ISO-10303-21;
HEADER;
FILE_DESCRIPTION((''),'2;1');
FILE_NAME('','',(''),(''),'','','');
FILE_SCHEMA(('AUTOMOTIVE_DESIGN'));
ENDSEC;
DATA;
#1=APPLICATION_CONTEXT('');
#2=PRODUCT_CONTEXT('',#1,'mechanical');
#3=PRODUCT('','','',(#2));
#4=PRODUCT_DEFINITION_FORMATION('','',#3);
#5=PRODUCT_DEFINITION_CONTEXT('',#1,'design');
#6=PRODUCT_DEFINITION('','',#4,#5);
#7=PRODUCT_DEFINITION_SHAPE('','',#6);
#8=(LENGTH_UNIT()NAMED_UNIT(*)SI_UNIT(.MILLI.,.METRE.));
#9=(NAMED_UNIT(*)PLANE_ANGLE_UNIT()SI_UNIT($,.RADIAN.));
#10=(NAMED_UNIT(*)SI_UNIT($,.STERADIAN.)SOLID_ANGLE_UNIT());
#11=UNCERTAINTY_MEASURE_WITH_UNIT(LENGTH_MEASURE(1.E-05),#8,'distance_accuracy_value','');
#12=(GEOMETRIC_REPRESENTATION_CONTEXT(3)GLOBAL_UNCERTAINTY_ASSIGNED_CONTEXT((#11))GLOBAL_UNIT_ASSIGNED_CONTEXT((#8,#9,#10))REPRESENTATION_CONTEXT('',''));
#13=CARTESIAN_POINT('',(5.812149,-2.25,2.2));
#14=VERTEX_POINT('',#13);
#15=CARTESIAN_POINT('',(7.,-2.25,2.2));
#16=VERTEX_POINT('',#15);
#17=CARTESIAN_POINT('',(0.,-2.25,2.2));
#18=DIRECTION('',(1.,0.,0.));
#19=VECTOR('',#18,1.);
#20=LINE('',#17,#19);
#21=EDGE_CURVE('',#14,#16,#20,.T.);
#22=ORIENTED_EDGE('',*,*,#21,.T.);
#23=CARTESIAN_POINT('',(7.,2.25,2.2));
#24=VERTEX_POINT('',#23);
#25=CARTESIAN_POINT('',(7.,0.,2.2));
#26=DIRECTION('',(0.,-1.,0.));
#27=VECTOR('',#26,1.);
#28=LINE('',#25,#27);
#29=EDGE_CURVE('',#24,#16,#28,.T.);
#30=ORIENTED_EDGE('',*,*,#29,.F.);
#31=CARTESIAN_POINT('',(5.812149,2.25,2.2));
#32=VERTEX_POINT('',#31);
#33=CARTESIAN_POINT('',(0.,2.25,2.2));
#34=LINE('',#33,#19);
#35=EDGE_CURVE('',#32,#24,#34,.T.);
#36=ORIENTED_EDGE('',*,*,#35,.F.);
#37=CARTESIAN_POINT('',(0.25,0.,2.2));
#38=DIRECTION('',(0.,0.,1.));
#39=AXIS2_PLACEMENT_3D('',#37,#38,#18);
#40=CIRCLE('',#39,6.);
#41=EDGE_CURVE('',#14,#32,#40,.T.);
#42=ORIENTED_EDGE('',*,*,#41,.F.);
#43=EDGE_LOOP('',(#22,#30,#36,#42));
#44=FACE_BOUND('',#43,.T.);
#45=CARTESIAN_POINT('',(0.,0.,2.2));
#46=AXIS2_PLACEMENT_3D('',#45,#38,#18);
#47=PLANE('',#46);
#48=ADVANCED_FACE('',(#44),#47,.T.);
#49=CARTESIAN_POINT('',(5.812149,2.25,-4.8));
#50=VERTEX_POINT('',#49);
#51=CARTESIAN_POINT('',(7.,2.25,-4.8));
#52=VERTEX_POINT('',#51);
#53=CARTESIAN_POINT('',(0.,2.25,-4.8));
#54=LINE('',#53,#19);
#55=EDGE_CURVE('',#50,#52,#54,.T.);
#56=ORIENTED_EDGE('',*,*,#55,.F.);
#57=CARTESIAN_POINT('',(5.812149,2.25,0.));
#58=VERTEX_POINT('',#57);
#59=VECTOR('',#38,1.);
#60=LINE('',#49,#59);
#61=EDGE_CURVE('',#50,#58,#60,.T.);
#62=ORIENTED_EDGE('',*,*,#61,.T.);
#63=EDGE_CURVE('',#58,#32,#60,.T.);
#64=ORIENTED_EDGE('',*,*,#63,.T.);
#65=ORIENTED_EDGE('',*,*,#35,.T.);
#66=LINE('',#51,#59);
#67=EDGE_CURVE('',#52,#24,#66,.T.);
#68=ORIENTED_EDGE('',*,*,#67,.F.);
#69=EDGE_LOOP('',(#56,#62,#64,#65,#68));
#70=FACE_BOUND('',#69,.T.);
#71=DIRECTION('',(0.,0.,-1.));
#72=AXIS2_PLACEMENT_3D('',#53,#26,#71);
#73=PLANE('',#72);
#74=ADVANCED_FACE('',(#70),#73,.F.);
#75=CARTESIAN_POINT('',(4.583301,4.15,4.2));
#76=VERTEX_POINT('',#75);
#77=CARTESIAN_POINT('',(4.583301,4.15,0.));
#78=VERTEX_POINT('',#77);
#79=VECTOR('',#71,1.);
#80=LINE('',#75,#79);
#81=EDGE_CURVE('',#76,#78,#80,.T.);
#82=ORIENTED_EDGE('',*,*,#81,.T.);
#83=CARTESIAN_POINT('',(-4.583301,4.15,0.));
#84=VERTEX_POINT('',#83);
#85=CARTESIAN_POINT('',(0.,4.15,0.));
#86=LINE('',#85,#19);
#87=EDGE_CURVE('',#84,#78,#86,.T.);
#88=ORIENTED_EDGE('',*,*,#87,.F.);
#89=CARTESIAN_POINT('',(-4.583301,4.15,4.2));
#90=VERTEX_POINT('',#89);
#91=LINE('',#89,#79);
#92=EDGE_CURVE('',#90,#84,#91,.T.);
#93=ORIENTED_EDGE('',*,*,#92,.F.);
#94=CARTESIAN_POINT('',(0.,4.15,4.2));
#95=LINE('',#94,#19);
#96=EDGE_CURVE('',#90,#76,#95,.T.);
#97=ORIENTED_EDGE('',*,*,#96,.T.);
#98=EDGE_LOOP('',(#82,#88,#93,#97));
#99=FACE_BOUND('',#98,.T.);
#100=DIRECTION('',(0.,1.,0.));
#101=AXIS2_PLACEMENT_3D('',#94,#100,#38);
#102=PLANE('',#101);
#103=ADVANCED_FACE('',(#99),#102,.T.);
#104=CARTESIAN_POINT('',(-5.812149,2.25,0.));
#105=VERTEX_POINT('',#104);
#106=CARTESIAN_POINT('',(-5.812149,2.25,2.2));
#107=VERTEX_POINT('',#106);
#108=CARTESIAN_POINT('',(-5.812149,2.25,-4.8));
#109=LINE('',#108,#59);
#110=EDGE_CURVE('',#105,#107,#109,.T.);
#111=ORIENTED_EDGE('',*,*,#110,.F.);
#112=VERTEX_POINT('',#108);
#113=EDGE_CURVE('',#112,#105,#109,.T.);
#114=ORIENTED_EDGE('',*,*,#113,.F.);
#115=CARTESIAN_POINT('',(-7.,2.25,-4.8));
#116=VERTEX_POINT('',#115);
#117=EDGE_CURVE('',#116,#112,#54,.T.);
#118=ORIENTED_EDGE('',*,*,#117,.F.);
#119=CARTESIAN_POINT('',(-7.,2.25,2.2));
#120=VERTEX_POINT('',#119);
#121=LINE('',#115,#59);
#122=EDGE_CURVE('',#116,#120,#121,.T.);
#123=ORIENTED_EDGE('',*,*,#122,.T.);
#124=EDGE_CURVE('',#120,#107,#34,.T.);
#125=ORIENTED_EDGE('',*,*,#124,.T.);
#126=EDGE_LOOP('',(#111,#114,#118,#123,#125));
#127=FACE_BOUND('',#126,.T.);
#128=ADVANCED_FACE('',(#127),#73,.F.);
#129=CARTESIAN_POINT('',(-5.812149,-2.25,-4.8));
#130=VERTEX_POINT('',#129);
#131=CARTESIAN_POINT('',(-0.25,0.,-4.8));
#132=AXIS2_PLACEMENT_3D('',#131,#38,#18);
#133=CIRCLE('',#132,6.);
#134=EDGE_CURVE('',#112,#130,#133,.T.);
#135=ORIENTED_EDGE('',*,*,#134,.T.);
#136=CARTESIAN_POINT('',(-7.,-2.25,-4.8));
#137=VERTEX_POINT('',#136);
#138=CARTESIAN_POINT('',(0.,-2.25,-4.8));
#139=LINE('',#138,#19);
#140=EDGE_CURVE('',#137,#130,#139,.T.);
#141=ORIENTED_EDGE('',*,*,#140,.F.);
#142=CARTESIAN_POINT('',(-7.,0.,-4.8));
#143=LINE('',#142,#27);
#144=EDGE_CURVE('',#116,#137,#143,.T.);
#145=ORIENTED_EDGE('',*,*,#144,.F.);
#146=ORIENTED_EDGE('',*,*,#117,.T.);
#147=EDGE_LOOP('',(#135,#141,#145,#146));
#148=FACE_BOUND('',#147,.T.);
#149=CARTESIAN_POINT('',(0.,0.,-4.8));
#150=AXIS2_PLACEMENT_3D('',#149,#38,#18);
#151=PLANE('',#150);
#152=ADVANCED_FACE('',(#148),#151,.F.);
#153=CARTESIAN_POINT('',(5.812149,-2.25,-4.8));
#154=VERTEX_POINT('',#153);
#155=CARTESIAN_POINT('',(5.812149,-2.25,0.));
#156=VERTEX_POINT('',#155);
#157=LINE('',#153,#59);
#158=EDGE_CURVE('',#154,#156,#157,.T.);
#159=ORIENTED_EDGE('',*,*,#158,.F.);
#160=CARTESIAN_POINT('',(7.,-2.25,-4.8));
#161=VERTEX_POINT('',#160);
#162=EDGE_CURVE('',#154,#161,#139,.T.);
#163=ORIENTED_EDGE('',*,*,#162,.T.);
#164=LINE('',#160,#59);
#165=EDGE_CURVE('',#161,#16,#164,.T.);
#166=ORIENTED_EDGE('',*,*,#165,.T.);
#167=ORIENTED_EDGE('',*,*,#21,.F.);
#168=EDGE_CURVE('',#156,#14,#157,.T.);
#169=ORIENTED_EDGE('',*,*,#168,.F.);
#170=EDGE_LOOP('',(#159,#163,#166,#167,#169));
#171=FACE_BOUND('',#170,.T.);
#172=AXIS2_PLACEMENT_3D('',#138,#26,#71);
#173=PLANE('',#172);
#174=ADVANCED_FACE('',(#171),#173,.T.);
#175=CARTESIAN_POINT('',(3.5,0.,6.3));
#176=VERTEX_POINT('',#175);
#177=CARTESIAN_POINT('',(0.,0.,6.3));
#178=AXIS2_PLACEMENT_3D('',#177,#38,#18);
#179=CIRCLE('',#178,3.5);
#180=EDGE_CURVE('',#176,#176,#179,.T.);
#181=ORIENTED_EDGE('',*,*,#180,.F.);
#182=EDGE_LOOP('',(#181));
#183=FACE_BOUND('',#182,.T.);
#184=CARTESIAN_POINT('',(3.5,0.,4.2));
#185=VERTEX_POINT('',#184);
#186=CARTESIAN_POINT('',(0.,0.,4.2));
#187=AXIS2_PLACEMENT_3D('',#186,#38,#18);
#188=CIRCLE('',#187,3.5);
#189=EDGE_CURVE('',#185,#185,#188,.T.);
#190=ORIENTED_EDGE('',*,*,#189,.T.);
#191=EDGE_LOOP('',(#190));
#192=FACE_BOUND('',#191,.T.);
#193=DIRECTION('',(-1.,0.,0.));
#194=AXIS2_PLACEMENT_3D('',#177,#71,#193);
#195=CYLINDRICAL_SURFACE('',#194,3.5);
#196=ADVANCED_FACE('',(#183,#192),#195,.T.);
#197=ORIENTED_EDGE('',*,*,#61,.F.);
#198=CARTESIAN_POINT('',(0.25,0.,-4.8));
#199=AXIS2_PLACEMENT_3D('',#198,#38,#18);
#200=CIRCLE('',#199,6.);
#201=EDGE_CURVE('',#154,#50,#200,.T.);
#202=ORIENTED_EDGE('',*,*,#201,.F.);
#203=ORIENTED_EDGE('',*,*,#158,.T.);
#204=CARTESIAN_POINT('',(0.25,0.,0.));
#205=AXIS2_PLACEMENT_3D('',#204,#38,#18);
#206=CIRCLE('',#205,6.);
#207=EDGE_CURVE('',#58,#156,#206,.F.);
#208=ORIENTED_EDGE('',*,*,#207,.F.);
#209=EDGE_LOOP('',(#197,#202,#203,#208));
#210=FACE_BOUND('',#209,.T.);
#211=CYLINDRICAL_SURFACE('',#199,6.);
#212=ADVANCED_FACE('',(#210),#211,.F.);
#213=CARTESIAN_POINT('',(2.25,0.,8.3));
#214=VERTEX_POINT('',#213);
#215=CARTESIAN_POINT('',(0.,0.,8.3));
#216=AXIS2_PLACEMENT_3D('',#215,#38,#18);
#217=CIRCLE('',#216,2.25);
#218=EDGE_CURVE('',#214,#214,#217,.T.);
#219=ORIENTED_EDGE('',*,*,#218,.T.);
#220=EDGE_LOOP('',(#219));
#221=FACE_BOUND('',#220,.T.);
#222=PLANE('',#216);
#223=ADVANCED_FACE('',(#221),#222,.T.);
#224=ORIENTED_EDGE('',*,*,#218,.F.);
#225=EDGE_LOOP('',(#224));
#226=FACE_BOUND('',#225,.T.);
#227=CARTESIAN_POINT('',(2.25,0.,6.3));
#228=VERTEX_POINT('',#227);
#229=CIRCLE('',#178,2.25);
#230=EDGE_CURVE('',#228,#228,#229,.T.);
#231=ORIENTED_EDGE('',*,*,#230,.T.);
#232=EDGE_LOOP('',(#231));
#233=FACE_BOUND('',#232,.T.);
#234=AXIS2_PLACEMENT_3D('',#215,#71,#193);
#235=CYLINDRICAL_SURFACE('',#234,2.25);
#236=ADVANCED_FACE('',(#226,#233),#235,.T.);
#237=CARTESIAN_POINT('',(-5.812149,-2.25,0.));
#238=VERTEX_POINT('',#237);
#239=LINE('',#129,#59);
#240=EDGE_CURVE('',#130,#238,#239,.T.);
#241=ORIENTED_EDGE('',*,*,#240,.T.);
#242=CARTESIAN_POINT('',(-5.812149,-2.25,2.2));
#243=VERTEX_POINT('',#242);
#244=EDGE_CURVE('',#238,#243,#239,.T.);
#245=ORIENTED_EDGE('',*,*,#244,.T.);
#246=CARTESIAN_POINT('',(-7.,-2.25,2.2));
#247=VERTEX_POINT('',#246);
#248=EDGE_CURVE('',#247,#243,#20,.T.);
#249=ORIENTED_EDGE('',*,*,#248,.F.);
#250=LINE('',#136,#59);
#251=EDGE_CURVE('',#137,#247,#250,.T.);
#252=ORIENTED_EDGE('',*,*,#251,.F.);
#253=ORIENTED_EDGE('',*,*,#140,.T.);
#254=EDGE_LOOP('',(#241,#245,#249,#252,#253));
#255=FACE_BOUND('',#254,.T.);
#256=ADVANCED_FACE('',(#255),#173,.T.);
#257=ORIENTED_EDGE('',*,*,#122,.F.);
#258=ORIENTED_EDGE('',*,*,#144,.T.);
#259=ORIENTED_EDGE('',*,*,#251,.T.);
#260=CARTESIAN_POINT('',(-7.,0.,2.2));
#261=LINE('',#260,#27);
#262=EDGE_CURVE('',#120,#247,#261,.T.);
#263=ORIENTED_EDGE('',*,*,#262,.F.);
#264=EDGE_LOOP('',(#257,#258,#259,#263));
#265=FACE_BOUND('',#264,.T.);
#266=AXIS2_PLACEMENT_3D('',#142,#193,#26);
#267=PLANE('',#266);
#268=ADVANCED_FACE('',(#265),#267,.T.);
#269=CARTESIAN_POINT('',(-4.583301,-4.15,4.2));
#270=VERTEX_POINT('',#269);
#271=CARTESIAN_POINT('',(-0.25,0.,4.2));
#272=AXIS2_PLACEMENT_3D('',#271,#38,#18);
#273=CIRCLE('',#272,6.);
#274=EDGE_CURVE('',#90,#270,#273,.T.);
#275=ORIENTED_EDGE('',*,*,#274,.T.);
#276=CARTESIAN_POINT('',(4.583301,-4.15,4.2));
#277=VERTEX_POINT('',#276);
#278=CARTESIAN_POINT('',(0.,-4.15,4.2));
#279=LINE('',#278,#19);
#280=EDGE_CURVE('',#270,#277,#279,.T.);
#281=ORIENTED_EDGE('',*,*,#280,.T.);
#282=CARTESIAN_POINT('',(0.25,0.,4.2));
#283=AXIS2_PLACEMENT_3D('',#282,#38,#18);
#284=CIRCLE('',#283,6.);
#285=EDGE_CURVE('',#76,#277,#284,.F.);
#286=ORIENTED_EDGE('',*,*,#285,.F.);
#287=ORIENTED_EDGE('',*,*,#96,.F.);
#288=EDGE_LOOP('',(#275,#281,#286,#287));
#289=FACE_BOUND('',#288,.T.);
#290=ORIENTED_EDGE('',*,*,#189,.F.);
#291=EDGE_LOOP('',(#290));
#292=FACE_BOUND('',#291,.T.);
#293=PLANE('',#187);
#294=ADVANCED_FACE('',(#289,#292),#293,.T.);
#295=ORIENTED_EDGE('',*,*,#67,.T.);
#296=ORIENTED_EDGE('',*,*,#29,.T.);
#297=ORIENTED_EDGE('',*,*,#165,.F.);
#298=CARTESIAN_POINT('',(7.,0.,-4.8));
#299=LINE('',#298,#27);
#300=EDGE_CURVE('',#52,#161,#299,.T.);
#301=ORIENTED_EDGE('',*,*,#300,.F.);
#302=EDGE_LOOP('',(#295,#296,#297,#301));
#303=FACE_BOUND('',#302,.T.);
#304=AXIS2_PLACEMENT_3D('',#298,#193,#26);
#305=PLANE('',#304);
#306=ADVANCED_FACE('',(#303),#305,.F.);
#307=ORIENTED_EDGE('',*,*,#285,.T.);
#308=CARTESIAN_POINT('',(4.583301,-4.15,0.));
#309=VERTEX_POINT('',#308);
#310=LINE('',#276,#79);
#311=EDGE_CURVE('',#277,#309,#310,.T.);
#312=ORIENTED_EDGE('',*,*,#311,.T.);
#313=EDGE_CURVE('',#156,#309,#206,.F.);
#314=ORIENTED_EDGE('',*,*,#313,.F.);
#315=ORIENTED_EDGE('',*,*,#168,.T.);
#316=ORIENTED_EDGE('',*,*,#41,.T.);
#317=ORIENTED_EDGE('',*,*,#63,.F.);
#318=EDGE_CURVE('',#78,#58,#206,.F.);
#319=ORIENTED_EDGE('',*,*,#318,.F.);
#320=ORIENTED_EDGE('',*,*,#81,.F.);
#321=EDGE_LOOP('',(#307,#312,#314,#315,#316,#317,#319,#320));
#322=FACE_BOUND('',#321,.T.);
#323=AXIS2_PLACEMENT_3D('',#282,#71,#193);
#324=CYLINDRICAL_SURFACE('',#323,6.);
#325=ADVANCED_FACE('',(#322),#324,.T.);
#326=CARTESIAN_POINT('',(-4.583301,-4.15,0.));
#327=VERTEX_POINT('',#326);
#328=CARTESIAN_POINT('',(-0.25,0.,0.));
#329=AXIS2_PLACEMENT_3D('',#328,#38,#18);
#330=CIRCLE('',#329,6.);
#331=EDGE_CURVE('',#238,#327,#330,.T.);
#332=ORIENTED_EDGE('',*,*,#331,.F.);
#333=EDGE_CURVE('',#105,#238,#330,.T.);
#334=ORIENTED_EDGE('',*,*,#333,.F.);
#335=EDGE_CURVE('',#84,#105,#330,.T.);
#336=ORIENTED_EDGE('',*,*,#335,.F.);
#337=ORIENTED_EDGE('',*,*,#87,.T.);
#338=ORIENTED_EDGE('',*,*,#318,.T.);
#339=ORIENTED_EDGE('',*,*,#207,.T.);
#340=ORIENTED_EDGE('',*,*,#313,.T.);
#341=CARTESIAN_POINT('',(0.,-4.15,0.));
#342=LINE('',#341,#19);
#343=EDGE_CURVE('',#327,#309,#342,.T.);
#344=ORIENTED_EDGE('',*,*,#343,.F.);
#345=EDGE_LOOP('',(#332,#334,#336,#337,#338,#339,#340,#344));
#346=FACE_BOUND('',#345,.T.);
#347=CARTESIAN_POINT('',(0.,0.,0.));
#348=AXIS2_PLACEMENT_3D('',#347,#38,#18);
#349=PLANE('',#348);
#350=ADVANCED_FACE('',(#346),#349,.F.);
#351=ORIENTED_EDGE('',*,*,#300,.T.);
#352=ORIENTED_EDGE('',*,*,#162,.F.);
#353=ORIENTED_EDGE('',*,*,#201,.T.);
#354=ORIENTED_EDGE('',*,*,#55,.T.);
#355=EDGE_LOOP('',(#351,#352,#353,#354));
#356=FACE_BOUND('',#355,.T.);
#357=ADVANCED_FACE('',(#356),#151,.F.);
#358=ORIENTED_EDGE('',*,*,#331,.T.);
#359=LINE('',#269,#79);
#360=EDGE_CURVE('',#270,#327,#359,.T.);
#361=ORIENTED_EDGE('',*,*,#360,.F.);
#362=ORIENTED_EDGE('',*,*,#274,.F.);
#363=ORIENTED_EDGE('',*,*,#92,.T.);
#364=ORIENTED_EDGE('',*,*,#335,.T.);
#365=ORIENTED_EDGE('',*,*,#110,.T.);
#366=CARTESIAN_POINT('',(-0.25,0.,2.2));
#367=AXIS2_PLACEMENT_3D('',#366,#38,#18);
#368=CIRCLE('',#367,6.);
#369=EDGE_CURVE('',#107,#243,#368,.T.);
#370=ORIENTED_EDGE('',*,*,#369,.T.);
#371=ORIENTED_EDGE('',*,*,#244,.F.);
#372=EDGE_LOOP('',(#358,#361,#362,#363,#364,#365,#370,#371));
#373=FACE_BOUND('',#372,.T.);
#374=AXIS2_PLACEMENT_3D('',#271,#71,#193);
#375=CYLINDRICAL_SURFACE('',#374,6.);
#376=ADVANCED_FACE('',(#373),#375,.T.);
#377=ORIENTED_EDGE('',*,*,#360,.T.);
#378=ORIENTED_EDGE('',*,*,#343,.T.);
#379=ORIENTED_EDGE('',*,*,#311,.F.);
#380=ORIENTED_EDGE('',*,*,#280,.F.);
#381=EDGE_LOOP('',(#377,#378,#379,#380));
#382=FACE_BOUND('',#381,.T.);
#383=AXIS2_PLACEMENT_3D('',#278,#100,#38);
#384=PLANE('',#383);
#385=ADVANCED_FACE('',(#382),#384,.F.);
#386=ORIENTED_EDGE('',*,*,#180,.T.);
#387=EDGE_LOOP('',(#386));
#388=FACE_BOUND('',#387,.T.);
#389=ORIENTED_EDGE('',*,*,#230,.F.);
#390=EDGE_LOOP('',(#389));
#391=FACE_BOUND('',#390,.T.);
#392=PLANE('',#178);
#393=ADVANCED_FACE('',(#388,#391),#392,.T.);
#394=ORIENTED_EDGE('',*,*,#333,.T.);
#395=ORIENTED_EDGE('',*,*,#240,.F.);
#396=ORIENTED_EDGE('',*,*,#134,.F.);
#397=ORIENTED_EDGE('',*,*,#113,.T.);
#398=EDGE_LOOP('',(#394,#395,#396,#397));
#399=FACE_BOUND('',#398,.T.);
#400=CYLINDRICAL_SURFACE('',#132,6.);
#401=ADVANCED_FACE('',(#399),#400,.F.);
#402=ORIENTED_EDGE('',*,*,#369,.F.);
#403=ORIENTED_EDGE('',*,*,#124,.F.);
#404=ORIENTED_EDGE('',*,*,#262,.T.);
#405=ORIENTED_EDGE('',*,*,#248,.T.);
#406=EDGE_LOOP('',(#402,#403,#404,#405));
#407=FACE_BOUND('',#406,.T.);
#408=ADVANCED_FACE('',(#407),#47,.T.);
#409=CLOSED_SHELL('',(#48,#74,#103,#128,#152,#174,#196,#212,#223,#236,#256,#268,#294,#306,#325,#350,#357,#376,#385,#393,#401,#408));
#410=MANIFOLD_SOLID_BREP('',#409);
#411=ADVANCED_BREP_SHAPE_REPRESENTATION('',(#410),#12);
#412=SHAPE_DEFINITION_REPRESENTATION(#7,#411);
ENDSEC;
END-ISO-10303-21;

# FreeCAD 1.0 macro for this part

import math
import FreeCAD as App
import Part
import Sketcher
from FreeCAD import Vector

doc = App.newDocument("Part")
body = doc.addObject("PartDesign::Body", "Body")

# Sketch on XY plane
sketch1 = body.newObject("Sketcher::SketchObject", "Sketch")
sketch1.AttachmentSupport = (doc.getObject("XY_Plane"), [""])
sketch1.MapMode = "FlatFace"
sketch1.addGeometry(Part.ArcOfCircle(Part.Circle(Vector(-0.2, 0, 0), Vector(0, 0, 1), 6), math.radians(180), math.radians(224)), False)
sketch1.addGeometry(Part.LineSegment(Vector(-4.6, -4.2, 0), Vector(4.6, -4.2, 0)), False)
sketch1.addGeometry(Part.ArcOfCircle(Part.Circle(Vector(0.2, 0, 0), Vector(0, 0, 1), 6), math.radians(-44), math.radians(0)), False)
sketch1.addGeometry(Part.ArcOfCircle(Part.Circle(Vector(0.3, 0, 0), Vector(0, 0, 1), 6), math.radians(0), math.radians(44)), False)
sketch1.addGeometry(Part.LineSegment(Vector(4.6, 4.2, 0), Vector(-4.6, 4.2, 0)), False)
sketch1.addGeometry(Part.ArcOfCircle(Part.Circle(Vector(-0.3, 0, 0), Vector(0, 0, 1), 6), math.radians(136), math.radians(180)), False)
sketch1.addConstraint(Sketcher.Constraint("Coincident", 0, 2, 1, 1))
sketch1.addConstraint(Sketcher.Constraint("Coincident", 1, 2, 2, 1))
sketch1.addConstraint(Sketcher.Constraint("Tangent", 2, 2, 3, 1))
sketch1.addConstraint(Sketcher.Constraint("Coincident", 3, 2, 4, 1))
sketch1.addConstraint(Sketcher.Constraint("Coincident", 4, 2, 5, 1))
sketch1.addConstraint(Sketcher.Constraint("Tangent", 5, 2, 0, 1))
sketch1.addConstraint(Sketcher.Constraint("Horizontal", 1))
sketch1.addConstraint(Sketcher.Constraint("Horizontal", 4))
sketch1.addConstraint(Sketcher.Constraint("Equal", 0, 2))
sketch1.addConstraint(Sketcher.Constraint("Equal", 2, 3))
sketch1.addConstraint(Sketcher.Constraint("Equal", 3, 5))
sketch1.addConstraint(Sketcher.Constraint("Symmetric", 0, 3, 2, 3, -1, 1))
sketch1.addConstraint(Sketcher.Constraint("Symmetric", 1, 2, 3, 2, -1))
sketch1.addConstraint(Sketcher.Constraint("PointOnObject", 2, 2, -1))
sketch1.addConstraint(Sketcher.Constraint("PointOnObject", 5, 2, -1))
sketch1.addConstraint(Sketcher.Constraint("Radius", 0, 6.0))
sketch1.addConstraint(Sketcher.Constraint("DistanceX", 0, 3, 2, 3, 0.5))
sketch1.addConstraint(Sketcher.Constraint("DistanceY", 0, 2, 4, 2, 8.3))
pad1 = body.newObject("PartDesign::Pad", "Pad")
pad1.Profile = sketch1
pad1.Length = 4.2

# Sketch on XY plane
sketch2 = body.newObject("Sketcher::SketchObject", "Sketch001")
sketch2.AttachmentSupport = (doc.getObject("XY_Plane"), [""])
sketch2.MapMode = "FlatFace"
sketch2.AttachmentOffset = App.Placement(Vector(0, 0, 4.2), App.Rotation())
sketch2.addGeometry(Part.Circle(Vector(0, 0, 0), Vector(0, 0, 1), 3.5), False)
sketch2.addConstraint(Sketcher.Constraint("Coincident", 0, 3, -1, 1))
sketch2.addConstraint(Sketcher.Constraint("Diameter", 0, 7.0))
pad2 = body.newObject("PartDesign::Pad", "Pad001")
pad2.Profile = sketch2
pad2.Length = 2.1

# Sketch on XY plane
sketch3 = body.newObject("Sketcher::SketchObject", "Sketch002")
sketch3.AttachmentSupport = (doc.getObject("XY_Plane"), [""])
sketch3.MapMode = "FlatFace"
sketch3.AttachmentOffset = App.Placement(Vector(0, 0, 6.3), App.Rotation())
sketch3.addGeometry(Part.Circle(Vector(0, 0, 0), Vector(0, 0, 1), 2.2), False)
sketch3.addConstraint(Sketcher.Constraint("Coincident", 0, 3, -1, 1))
sketch3.addConstraint(Sketcher.Constraint("Diameter", 0, 4.5))
pad3 = body.newObject("PartDesign::Pad", "Pad002")
pad3.Profile = sketch3
pad3.Length = 2

# Sketch on XY plane
sketch4 = body.newObject("Sketcher::SketchObject", "Sketch003")
sketch4.AttachmentSupport = (doc.getObject("XY_Plane"), [""])
sketch4.MapMode = "FlatFace"
sketch4.AttachmentOffset = App.Placement(Vector(0, 0, -4.8), App.Rotation())
sketch4.addGeometry(Part.ArcOfCircle(Part.Circle(Vector(-0.3, 0, 0), Vector(0, 0, 1), 6), math.radians(158), math.radians(202)), False)
sketch4.addGeometry(Part.LineSegment(Vector(-5.8, 2.2, 0), Vector(-7, 2.2, 0)), False)
sketch4.addGeometry(Part.LineSegment(Vector(-7, 2.2, 0), Vector(-7, -2.2, 0)), False)
sketch4.addGeometry(Part.LineSegment(Vector(-7, -2.2, 0), Vector(-5.8, -2.2, 0)), False)
sketch4.addGeometry(Part.LineSegment(Vector(7, 2.2, 0), Vector(5.8, 2.2, 0)), False)
sketch4.addGeometry(Part.ArcOfCircle(Part.Circle(Vector(0.3, 0, 0), Vector(0, 0, 1), 6), math.radians(-22), math.radians(22)), False)
sketch4.addGeometry(Part.LineSegment(Vector(5.8, -2.2, 0), Vector(7, -2.2, 0)), False)
sketch4.addGeometry(Part.LineSegment(Vector(7, -2.2, 0), Vector(7, 2.2, 0)), False)
sketch4.addConstraint(Sketcher.Constraint("Coincident", 0, 1, 1, 1))
sketch4.addConstraint(Sketcher.Constraint("Coincident", 1, 2, 2, 1))
sketch4.addConstraint(Sketcher.Constraint("Coincident", 2, 2, 3, 1))
sketch4.addConstraint(Sketcher.Constraint("Coincident", 3, 2, 0, 2))
sketch4.addConstraint(Sketcher.Constraint("Coincident", 4, 2, 5, 2))
sketch4.addConstraint(Sketcher.Constraint("Coincident", 5, 1, 6, 1))
sketch4.addConstraint(Sketcher.Constraint("Coincident", 6, 2, 7, 1))
sketch4.addConstraint(Sketcher.Constraint("Coincident", 7, 2, 4, 1))
sketch4.addConstraint(Sketcher.Constraint("Horizontal", 1))
sketch4.addConstraint(Sketcher.Constraint("Vertical", 2))
sketch4.addConstraint(Sketcher.Constraint("Horizontal", 3))
sketch4.addConstraint(Sketcher.Constraint("Horizontal", 4))
sketch4.addConstraint(Sketcher.Constraint("Horizontal", 6))
sketch4.addConstraint(Sketcher.Constraint("Vertical", 7))
sketch4.addConstraint(Sketcher.Constraint("Equal", 0, 5))
sketch4.addConstraint(Sketcher.Constraint("Symmetric", 0, 3, 5, 3, -1, 1))
sketch4.addConstraint(Sketcher.Constraint("Symmetric", 1, 2, 6, 2, -1, 1))
sketch4.addConstraint(Sketcher.Constraint("Symmetric", 0, 1, 4, 2, -2))
sketch4.addConstraint(Sketcher.Constraint("Horizontal", 3, 2, 5, 1))
sketch4.addConstraint(Sketcher.Constraint("Radius", 0, 6.0))
sketch4.addConstraint(Sketcher.Constraint("DistanceY", 2, 2, 2, 1, 4.5))
sketch4.addConstraint(Sketcher.Constraint("DistanceX", 1, 2, -1, 1, 7.0))
sketch4.addConstraint(Sketcher.Constraint("DistanceX", 0, 3, 5, 3, 0.5))
pad4 = body.newObject("PartDesign::Pad", "Pad003")
pad4.Profile = sketch4
pad4.Length = 7

doc.recompute()
